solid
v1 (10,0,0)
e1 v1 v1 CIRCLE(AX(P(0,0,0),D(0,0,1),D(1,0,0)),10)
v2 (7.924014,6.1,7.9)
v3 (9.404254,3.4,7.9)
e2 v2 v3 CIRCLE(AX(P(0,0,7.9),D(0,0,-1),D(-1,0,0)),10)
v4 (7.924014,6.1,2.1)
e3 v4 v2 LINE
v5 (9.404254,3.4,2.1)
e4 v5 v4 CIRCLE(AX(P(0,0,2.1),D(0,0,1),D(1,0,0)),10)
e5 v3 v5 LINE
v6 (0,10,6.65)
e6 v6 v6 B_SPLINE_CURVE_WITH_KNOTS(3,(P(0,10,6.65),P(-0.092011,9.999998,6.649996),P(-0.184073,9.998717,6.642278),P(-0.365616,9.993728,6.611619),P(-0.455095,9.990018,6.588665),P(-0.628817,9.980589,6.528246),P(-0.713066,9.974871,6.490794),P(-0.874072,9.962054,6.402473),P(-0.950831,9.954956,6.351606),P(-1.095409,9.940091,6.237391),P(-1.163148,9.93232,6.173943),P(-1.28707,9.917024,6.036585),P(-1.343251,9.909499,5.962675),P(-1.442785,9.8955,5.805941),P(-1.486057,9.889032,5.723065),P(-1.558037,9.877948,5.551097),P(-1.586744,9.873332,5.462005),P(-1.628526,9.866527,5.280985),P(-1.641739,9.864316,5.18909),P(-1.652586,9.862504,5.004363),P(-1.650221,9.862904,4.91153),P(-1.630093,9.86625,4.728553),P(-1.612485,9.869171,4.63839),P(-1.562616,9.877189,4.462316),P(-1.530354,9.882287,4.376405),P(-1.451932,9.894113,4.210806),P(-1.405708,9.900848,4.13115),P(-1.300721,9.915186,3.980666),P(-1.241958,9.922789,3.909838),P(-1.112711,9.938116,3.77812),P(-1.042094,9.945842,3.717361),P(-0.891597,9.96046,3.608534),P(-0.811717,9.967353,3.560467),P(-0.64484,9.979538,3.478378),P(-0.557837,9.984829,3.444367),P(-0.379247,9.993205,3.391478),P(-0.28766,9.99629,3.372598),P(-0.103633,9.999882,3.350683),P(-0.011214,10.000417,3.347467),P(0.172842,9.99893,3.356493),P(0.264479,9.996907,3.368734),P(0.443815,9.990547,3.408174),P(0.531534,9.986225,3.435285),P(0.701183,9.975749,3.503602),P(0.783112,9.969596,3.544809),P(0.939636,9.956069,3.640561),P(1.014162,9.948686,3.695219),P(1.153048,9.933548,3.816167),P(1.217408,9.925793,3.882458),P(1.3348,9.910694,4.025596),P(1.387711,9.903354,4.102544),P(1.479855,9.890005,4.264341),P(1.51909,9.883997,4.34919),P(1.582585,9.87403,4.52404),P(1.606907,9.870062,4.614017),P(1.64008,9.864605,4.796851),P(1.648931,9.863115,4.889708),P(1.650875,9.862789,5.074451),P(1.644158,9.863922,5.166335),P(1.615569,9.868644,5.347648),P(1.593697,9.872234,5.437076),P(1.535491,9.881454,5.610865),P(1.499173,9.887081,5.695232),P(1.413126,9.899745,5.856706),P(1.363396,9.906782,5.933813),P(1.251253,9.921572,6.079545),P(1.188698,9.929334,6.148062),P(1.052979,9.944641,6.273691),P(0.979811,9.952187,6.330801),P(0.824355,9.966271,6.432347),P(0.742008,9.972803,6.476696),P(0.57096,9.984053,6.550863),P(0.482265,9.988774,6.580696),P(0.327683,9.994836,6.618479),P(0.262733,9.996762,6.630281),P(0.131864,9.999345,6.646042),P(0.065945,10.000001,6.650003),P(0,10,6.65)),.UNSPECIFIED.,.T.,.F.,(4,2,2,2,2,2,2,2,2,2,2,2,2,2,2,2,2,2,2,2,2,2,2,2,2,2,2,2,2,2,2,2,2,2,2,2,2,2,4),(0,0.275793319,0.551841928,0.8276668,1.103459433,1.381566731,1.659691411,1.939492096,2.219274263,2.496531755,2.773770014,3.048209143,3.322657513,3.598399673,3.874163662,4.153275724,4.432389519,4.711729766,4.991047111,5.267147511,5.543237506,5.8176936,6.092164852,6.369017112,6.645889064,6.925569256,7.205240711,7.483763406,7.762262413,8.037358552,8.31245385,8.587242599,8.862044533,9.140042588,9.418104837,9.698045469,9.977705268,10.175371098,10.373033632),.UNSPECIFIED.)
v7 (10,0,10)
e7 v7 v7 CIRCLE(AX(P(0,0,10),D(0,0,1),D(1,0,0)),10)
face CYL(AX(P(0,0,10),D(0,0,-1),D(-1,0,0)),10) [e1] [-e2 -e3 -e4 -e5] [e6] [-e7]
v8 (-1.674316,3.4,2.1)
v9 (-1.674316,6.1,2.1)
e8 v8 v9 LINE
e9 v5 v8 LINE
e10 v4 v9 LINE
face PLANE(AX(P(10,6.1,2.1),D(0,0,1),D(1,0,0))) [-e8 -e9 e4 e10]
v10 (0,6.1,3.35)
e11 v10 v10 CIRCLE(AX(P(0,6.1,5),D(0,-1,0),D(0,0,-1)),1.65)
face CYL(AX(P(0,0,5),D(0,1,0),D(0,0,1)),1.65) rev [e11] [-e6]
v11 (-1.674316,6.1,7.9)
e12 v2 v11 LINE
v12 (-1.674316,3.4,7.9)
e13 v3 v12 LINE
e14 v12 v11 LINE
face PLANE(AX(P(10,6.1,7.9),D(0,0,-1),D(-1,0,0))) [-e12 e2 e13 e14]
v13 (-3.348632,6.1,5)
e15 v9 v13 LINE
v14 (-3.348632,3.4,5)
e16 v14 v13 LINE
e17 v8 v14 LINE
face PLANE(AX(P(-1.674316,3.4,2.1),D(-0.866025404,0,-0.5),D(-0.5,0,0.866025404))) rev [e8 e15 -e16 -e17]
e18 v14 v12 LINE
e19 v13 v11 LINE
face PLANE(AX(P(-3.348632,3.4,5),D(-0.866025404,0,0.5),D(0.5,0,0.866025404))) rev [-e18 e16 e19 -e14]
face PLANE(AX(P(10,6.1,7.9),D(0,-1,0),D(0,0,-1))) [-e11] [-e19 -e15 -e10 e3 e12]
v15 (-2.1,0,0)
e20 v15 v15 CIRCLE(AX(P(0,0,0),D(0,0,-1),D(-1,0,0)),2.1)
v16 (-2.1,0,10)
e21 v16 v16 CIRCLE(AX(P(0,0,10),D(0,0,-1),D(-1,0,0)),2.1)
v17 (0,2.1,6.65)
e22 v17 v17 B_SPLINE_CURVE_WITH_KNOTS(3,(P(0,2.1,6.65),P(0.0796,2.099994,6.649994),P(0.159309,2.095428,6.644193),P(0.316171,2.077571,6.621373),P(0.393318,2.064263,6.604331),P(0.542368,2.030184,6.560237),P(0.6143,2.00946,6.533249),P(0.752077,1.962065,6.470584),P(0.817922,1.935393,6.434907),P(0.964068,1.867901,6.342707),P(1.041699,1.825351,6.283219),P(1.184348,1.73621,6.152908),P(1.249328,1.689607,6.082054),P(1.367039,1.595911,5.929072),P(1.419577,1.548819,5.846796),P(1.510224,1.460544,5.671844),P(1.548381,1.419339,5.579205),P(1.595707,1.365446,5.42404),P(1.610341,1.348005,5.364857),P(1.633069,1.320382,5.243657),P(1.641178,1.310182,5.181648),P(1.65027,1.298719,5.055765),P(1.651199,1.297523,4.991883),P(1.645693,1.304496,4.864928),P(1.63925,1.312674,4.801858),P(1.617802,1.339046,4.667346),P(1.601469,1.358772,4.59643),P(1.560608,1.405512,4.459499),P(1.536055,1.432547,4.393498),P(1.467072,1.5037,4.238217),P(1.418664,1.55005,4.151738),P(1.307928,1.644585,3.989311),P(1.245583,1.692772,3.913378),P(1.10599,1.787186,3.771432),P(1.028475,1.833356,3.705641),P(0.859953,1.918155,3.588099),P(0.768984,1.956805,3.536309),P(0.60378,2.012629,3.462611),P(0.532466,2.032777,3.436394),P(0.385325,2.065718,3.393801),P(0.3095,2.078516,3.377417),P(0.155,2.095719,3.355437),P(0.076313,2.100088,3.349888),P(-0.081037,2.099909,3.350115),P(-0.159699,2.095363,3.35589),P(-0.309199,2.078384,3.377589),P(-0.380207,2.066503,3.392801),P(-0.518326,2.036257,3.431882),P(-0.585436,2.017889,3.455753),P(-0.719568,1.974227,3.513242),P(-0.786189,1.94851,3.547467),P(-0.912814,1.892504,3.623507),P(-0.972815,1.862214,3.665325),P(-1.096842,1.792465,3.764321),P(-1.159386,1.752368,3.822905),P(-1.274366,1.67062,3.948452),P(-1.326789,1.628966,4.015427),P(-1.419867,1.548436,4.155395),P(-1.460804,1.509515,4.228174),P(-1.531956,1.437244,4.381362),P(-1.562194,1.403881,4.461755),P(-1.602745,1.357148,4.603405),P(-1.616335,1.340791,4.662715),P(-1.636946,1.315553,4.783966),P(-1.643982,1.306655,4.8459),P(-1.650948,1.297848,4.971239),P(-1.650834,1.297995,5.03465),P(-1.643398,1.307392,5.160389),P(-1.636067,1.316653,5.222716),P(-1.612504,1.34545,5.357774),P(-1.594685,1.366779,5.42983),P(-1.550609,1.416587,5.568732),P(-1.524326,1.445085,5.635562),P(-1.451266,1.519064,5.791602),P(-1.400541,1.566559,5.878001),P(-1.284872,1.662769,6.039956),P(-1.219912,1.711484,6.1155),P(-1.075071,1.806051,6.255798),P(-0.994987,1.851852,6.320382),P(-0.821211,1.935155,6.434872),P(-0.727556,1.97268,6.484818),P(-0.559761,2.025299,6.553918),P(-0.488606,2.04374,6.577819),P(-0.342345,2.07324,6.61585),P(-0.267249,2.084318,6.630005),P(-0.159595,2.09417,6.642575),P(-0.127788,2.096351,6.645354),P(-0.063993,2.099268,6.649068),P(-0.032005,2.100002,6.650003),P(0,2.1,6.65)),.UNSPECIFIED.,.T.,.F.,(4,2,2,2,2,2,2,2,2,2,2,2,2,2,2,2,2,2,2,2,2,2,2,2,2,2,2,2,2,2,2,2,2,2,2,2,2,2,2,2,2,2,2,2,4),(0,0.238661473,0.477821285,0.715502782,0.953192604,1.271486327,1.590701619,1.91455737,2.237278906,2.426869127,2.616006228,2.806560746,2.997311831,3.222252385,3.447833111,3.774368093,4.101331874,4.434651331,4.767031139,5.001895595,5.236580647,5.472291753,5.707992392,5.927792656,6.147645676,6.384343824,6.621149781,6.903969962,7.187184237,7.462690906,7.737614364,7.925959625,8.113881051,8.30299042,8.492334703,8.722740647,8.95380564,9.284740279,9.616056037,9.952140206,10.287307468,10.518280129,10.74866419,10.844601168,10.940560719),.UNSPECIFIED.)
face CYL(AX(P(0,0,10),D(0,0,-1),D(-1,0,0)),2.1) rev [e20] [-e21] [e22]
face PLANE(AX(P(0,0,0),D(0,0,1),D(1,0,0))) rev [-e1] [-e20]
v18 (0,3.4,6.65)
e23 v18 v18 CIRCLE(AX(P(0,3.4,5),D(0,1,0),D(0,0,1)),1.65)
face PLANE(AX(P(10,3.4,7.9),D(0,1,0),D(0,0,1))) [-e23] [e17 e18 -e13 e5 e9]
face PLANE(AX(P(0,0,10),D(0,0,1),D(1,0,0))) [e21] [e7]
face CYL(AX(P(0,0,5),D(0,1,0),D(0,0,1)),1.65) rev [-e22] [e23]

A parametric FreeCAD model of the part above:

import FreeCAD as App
import Part
import Sketcher
Q = App.Units.Quantity

doc = App.newDocument("Part")
params = doc.addObject("Spreadsheet::Sheet", "Params")
for row, (alias, value) in enumerate([
    ("sketch1_diameter", "20 mm"),
    ("pad1_length", "10 mm"),
    ("sketch2_diameter", "4.2 mm"),
    ("pocket1_length", "10 mm"),
    ("sketch3_width", "2.7 mm"),
    ("sketch3_height", "5.8 mm"),
    ("pocket2_length", "10 mm"),
    ("sketch4_diameter", "3.3 mm"),
    ("pocket3_length", "10 mm"),
    ("pocket4_length", "2.7 mm"),
], start=1):
    params.set(f"A{row}", alias)
    params.set(f"B{row}", "=" + value)
    params.setAlias(f"B{row}", alias)

body = doc.addObject("PartDesign::Body", "Body")

sketch1 = body.newObject("Sketcher::SketchObject", "Sketch")
sketch1.AttachmentSupport = (doc.getObject("XY_Plane"), [""])
sketch1.MapMode = "FlatFace"
sketch1.addGeometry(Part.Circle(App.Vector(0, 0, 0), App.Vector(0, 0, 1), 10), False)
sketch1.addConstraint([
    Sketcher.Constraint("Coincident", 0, 3, -1, 1),
    Sketcher.Constraint("Diameter", 0, Q("20 mm")),
])
sketch1.setExpression("Constraints[1]", "Params.sketch1_diameter")
pad1 = body.newObject("PartDesign::Pad", "Pad")
pad1.Profile = sketch1
pad1.setExpression("Length", "Params.pad1_length")

sketch2 = body.newObject("Sketcher::SketchObject", "Sketch001")
sketch2.AttachmentSupport = (doc.getObject("XY_Plane"), [""])
sketch2.MapMode = "FlatFace"
sketch2.addGeometry(Part.Circle(App.Vector(0, 0, 0), App.Vector(0, 0, 1), 2.1), False)
sketch2.addConstraint([
    Sketcher.Constraint("Coincident", 0, 3, -1, 1),
    Sketcher.Constraint("Diameter", 0, Q("4.2 mm")),
])
sketch2.setExpression("Constraints[1]", "Params.sketch2_diameter")
pocket1 = body.newObject("PartDesign::Pocket", "Pocket")
pocket1.Profile = sketch2
pocket1.setExpression("Length", "Params.pocket1_length")
pocket1.Reversed = True

sketch3 = body.newObject("Sketcher::SketchObject", "Sketch002")
sketch3.AttachmentSupport = (doc.getObject("YZ_Plane"), [""])
sketch3.MapMode = "FlatFace"
sketch3.AttachmentOffset = App.Placement(App.Vector(0, 0, 10), App.Rotation())
sketch3.addGeometry([
    Part.LineSegment(App.Vector(6.1, 2.1, 0), App.Vector(6.1, 7.9, 0)),
    Part.LineSegment(App.Vector(6.1, 7.9, 0), App.Vector(3.4, 7.9, 0)),
    Part.LineSegment(App.Vector(3.4, 7.9, 0), App.Vector(3.4, 2.1, 0)),
    Part.LineSegment(App.Vector(3.4, 2.1, 0), App.Vector(6.1, 2.1, 0)),
], False)
sketch3.addConstraint([
    Sketcher.Constraint("Coincident", 0, 2, 1, 1),
    Sketcher.Constraint("Coincident", 1, 2, 2, 1),
    Sketcher.Constraint("Coincident", 2, 2, 3, 1),
    Sketcher.Constraint("Coincident", 3, 2, 0, 1),
    Sketcher.Constraint("Vertical", 0),
    Sketcher.Constraint("Horizontal", 1),
    Sketcher.Constraint("Vertical", 2),
    Sketcher.Constraint("Horizontal", 3),
    Sketcher.Constraint("DistanceX", 1, 2, 1, 1, Q("2.7 mm")),
    Sketcher.Constraint("DistanceY", 0, 1, 0, 2, Q("5.8 mm")),
    Sketcher.Constraint("DistanceX", -1, 1, 0, 2, Q("6.1 mm")),
    Sketcher.Constraint("DistanceY", -1, 1, 0, 2, Q("7.9 mm")),
])
sketch3.setExpression("Constraints[8]", "Params.sketch3_width")
sketch3.setExpression("Constraints[9]", "Params.sketch3_height")
pocket2 = body.newObject("PartDesign::Pocket", "Pocket001")
pocket2.Profile = sketch3
pocket2.setExpression("Length", "Params.pocket2_length")

sketch4 = body.newObject("Sketcher::SketchObject", "Sketch003")
sketch4.AttachmentSupport = (doc.getObject("XZ_Plane"), [""])
sketch4.MapMode = "FlatFace"
sketch4.AttachmentOffset = App.Placement(App.Vector(0, 0, -10), App.Rotation())
sketch4.addGeometry(Part.Circle(App.Vector(0, 5, 0), App.Vector(0, 0, 1), 1.6), False)
sketch4.addConstraint([
    Sketcher.Constraint("PointOnObject", 0, 3, -2),
    Sketcher.Constraint("Diameter", 0, Q("3.3 mm")),
    Sketcher.Constraint("DistanceY", -1, 1, 0, 3, Q("5 mm")),
])
sketch4.setExpression("Constraints[1]", "Params.sketch4_diameter")
pocket3 = body.newObject("PartDesign::Pocket", "Pocket002")
pocket3.Profile = sketch4
pocket3.setExpression("Length", "Params.pocket3_length")
pocket3.Reversed = True

sketch5 = body.newObject("Sketcher::SketchObject", "Sketch004")
sketch5.AttachmentSupport = (doc.getObject("XZ_Plane"), [""])
sketch5.MapMode = "FlatFace"
sketch5.AttachmentOffset = App.Placement(App.Vector(0, 0, -6.1), App.Rotation())
sketch5.addGeometry([
    Part.LineSegment(App.Vector(-1.7, 2.1, 0), App.Vector(-3.3, 5, 0)),
    Part.LineSegment(App.Vector(-3.3, 5, 0), App.Vector(-1.7, 7.9, 0)),
    Part.LineSegment(App.Vector(-1.7, 7.9, 0), App.Vector(1.7, 7.9, 0)),
    Part.LineSegment(App.Vector(1.7, 7.9, 0), App.Vector(3.3, 5, 0)),
    Part.LineSegment(App.Vector(3.3, 5, 0), App.Vector(1.7, 2.1, 0)),
    Part.LineSegment(App.Vector(1.7, 2.1, 0), App.Vector(-1.7, 2.1, 0)),
], False)
sketch5.addConstraint([
    Sketcher.Constraint("Coincident", 0, 2, 1, 1),
    Sketcher.Constraint("Coincident", 1, 2, 2, 1),
    Sketcher.Constraint("Coincident", 2, 2, 3, 1),
    Sketcher.Constraint("Coincident", 3, 2, 4, 1),
    Sketcher.Constraint("Coincident", 4, 2, 5, 1),
    Sketcher.Constraint("Coincident", 5, 2, 0, 1),
    Sketcher.Constraint("Horizontal", 2),
    Sketcher.Constraint("Horizontal", 5),
    Sketcher.Constraint("Symmetric", 0, 2, 3, 2, -2),
    Sketcher.Constraint("Parallel", 0, 3),
    Sketcher.Constraint("Parallel", 1, 4),
    Sketcher.Constraint("Vertical", 2, 2, 4, 2),
    Sketcher.Constraint("Vertical", 1, 2, 5, 2),
    Sketcher.Constraint("Angle", 0, Q("120 deg")),
    Sketcher.Constraint("DistanceY", -1, 1, 0, 2, Q("5 mm")),
    Sketcher.Constraint("DistanceY", -1, 1, 1, 2, Q("7.9 mm")),
    Sketcher.Constraint("DistanceX", 2, 1, 2, 2, Q("3.348632 mm")),
])
pocket4 = body.newObject("PartDesign::Pocket", "Pocket003")
pocket4.Profile = sketch5
pocket4.setExpression("Length", "Params.pocket4_length")
pocket4.Reversed = True

doc.recompute()
